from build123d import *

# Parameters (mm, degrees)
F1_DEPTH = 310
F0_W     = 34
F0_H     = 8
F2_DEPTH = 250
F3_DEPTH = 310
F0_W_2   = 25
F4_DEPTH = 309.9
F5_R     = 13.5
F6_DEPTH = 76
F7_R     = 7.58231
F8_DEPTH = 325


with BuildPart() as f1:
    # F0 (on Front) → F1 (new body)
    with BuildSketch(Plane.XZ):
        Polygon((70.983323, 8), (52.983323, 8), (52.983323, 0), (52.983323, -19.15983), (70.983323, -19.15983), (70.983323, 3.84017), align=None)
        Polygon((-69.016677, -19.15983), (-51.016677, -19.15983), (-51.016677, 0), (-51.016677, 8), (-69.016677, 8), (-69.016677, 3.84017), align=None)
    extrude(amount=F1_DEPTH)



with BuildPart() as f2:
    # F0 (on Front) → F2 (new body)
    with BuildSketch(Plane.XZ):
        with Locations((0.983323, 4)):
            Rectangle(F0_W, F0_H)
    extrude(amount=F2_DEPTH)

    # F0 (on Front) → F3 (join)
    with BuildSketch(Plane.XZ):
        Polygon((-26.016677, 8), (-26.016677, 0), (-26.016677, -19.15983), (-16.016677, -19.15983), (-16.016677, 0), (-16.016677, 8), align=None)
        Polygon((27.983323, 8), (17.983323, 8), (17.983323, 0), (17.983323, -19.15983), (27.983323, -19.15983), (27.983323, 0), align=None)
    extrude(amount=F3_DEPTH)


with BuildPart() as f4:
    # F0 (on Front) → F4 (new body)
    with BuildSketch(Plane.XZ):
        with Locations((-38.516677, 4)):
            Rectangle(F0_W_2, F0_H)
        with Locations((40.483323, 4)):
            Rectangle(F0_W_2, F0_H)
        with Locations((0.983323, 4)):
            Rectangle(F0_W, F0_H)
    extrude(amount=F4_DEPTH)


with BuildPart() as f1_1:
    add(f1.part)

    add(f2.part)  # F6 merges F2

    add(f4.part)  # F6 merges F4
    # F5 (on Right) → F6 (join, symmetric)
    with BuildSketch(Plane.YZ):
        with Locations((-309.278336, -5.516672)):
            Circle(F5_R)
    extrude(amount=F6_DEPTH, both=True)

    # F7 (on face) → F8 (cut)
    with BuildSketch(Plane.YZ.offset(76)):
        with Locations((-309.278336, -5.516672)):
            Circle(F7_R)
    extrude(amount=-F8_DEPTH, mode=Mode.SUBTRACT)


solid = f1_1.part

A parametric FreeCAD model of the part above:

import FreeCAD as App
import Part
import Sketcher
Q = App.Units.Quantity

doc = App.newDocument("Part")
body = doc.addObject("PartDesign::Body", "Body")
body.AllowCompound = True

sketch1 = body.newObject("Sketcher::SketchObject", "Sketch")
sketch1.AttachmentSupport = (doc.getObject("XZ_Plane"), [""])
sketch1.MapMode = "FlatFace"
sketch1.addGeometry([
    Part.LineSegment(App.Vector(71, 8, 0), App.Vector(53, 8, 0)),
    Part.LineSegment(App.Vector(53, 8, 0), App.Vector(53, -19, 0)),
    Part.LineSegment(App.Vector(53, -19, 0), App.Vector(71, -19, 0)),
    Part.LineSegment(App.Vector(71, -19, 0), App.Vector(71, 8, 0)),
    Part.LineSegment(App.Vector(-69, -19, 0), App.Vector(-51, -19, 0)),
    Part.LineSegment(App.Vector(-51, -19, 0), App.Vector(-51, 8, 0)),
    Part.LineSegment(App.Vector(-51, 8, 0), App.Vector(-69, 8, 0)),
    Part.LineSegment(App.Vector(-69, 8, 0), App.Vector(-69, -19, 0)),
], False)
sketch1.addConstraint([
    Sketcher.Constraint("Coincident", 0, 2, 1, 1),
    Sketcher.Constraint("Coincident", 1, 2, 2, 1),
    Sketcher.Constraint("Coincident", 2, 2, 3, 1),
    Sketcher.Constraint("Coincident", 3, 2, 0, 1),
    Sketcher.Constraint("Coincident", 4, 2, 5, 1),
    Sketcher.Constraint("Coincident", 5, 2, 6, 1),
    Sketcher.Constraint("Coincident", 6, 2, 7, 1),
    Sketcher.Constraint("Coincident", 7, 2, 4, 1),
    Sketcher.Constraint("Horizontal", 0),
    Sketcher.Constraint("Vertical", 1),
    Sketcher.Constraint("Horizontal", 2),
    Sketcher.Constraint("Vertical", 3),
    Sketcher.Constraint("Horizontal", 4),
    Sketcher.Constraint("Vertical", 5),
    Sketcher.Constraint("Horizontal", 6),
    Sketcher.Constraint("Vertical", 7),
    Sketcher.Constraint("Horizontal", 2, 2, 4, 2),
    Sketcher.Constraint("Horizontal", 3, 2, 5, 2),
    Sketcher.Constraint("Equal", 2, 4),
    Sketcher.Constraint("DistanceX", 0, 2, 0, 1, Q("18 mm")),
    Sketcher.Constraint("DistanceY", -1, 1, 0, 2, Q("8 mm")),
    Sketcher.Constraint("DistanceX", 4, 2, 1, 2, Q("104 mm")),
    Sketcher.Constraint("DistanceY", 1, 2, 1, 1, Q("27.15983 mm")),
    Sketcher.Constraint("DistanceX", -1, 1, 0, 2, Q("52.983323 mm")),
])
pad1 = body.newObject("PartDesign::Pad", "Pad")
pad1.Profile = sketch1
pad1.Length = 310
body2 = doc.addObject("PartDesign::Body", "Body001")

sketch2 = body2.newObject("Sketcher::SketchObject", "Sketch001")
sketch2.AttachmentSupport = (doc.getObject("XZ_Plane001"), [""])
sketch2.MapMode = "FlatFace"
sketch2.addGeometry([
    Part.LineSegment(App.Vector(-16, 8, 0), App.Vector(-16, 0, 0)),
    Part.LineSegment(App.Vector(-16, 0, 0), App.Vector(18, 0, 0)),
    Part.LineSegment(App.Vector(18, 0, 0), App.Vector(18, 8, 0)),
    Part.LineSegment(App.Vector(18, 8, 0), App.Vector(-16, 8, 0)),
], False)
sketch2.addConstraint([
    Sketcher.Constraint("Coincident", 0, 2, 1, 1),
    Sketcher.Constraint("Coincident", 1, 2, 2, 1),
    Sketcher.Constraint("Coincident", 2, 2, 3, 1),
    Sketcher.Constraint("Coincident", 3, 2, 0, 1),
    Sketcher.Constraint("Vertical", 0),
    Sketcher.Constraint("Horizontal", 1),
    Sketcher.Constraint("Vertical", 2),
    Sketcher.Constraint("Horizontal", 3),
    Sketcher.Constraint("PointOnObject", 0, 2, -1),
    Sketcher.Constraint("DistanceX", 1, 1, 1, 2, Q("34 mm")),
    Sketcher.Constraint("DistanceY", 0, 2, 0, 1, Q("8 mm")),
    Sketcher.Constraint("DistanceX", 0, 2, -1, 1, Q("16.016677 mm")),
])
pad2 = body2.newObject("PartDesign::Pad", "Pad001")
pad2.Profile = sketch2
pad2.Length = 250

sketch3 = body2.newObject("Sketcher::SketchObject", "Sketch002")
sketch3.AttachmentSupport = (doc.getObject("XZ_Plane001"), [""])
sketch3.MapMode = "FlatFace"
sketch3.addGeometry([
    Part.LineSegment(App.Vector(-26, 8, 0), App.Vector(-26, -19, 0)),
    Part.LineSegment(App.Vector(-26, -19, 0), App.Vector(-16, -19, 0)),
    Part.LineSegment(App.Vector(-16, -19, 0), App.Vector(-16, 8, 0)),
    Part.LineSegment(App.Vector(-16, 8, 0), App.Vector(-26, 8, 0)),
    Part.LineSegment(App.Vector(28, 8, 0), App.Vector(18, 8, 0)),
    Part.LineSegment(App.Vector(18, 8, 0), App.Vector(18, -19, 0)),
    Part.LineSegment(App.Vector(18, -19, 0), App.Vector(28, -19, 0)),
    Part.LineSegment(App.Vector(28, -19, 0), App.Vector(28, 8, 0)),
], False)
sketch3.addConstraint([
    Sketcher.Constraint("Coincident", 0, 2, 1, 1),
    Sketcher.Constraint("Coincident", 1, 2, 2, 1),
    Sketcher.Constraint("Coincident", 2, 2, 3, 1),
    Sketcher.Constraint("Coincident", 3, 2, 0, 1),
    Sketcher.Constraint("Coincident", 4, 2, 5, 1),
    Sketcher.Constraint("Coincident", 5, 2, 6, 1),
    Sketcher.Constraint("Coincident", 6, 2, 7, 1),
    Sketcher.Constraint("Coincident", 7, 2, 4, 1),
    Sketcher.Constraint("Vertical", 0),
    Sketcher.Constraint("Horizontal", 1),
    Sketcher.Constraint("Vertical", 2),
    Sketcher.Constraint("Horizontal", 3),
    Sketcher.Constraint("Horizontal", 4),
    Sketcher.Constraint("Vertical", 5),
    Sketcher.Constraint("Horizontal", 6),
    Sketcher.Constraint("Vertical", 7),
    Sketcher.Constraint("Horizontal", 3, 2, 4, 2),
    Sketcher.Constraint("Horizontal", 1, 2, 5, 2),
    Sketcher.Constraint("Equal", 3, 4),
    Sketcher.Constraint("DistanceX", 1, 1, 1, 2, Q("10 mm")),
    Sketcher.Constraint("DistanceY", -1, 1, 2, 2, Q("8 mm")),
    Sketcher.Constraint("DistanceX", 2, 2, 4, 2, Q("34 mm")),
    Sketcher.Constraint("DistanceY", 0, 2, 0, 1, Q("27.15983 mm")),
    Sketcher.Constraint("DistanceX", 0, 2, -1, 1, Q("26.016677 mm")),
])
pad3 = body2.newObject("PartDesign::Pad", "Pad002")
pad3.Profile = sketch3
pad3.Length = 310
body3 = doc.addObject("PartDesign::Body", "Body002")
body3.AllowCompound = True

sketch4 = body3.newObject("Sketcher::SketchObject", "Sketch003")
sketch4.AttachmentSupport = (doc.getObject("XZ_Plane002"), [""])
sketch4.MapMode = "FlatFace"
sketch4.addGeometry([
    Part.LineSegment(App.Vector(-51, 8, 0), App.Vector(-51, 0, 0)),
    Part.LineSegment(App.Vector(-51, 0, 0), App.Vector(-26, 0, 0)),
    Part.LineSegment(App.Vector(-26, 0, 0), App.Vector(-26, 8, 0)),
    Part.LineSegment(App.Vector(-26, 8, 0), App.Vector(-51, 8, 0)),
    Part.LineSegment(App.Vector(28, 8, 0), App.Vector(28, 0, 0)),
    Part.LineSegment(App.Vector(28, 0, 0), App.Vector(53, 0, 0)),
    Part.LineSegment(App.Vector(53, 0, 0), App.Vector(53, 8, 0)),
    Part.LineSegment(App.Vector(53, 8, 0), App.Vector(28, 8, 0)),
    Part.LineSegment(App.Vector(-16, 8, 0), App.Vector(-16, 0, 0)),
    Part.LineSegment(App.Vector(-16, 0, 0), App.Vector(18, 0, 0)),
    Part.LineSegment(App.Vector(18, 0, 0), App.Vector(18, 8, 0)),
    Part.LineSegment(App.Vector(18, 8, 0), App.Vector(-16, 8, 0)),
], False)
sketch4.addConstraint([
    Sketcher.Constraint("Coincident", 0, 2, 1, 1),
    Sketcher.Constraint("Coincident", 1, 2, 2, 1),
    Sketcher.Constraint("Coincident", 2, 2, 3, 1),
    Sketcher.Constraint("Coincident", 3, 2, 0, 1),
    Sketcher.Constraint("Coincident", 4, 2, 5, 1),
    Sketcher.Constraint("Coincident", 5, 2, 6, 1),
    Sketcher.Constraint("Coincident", 6, 2, 7, 1),
    Sketcher.Constraint("Coincident", 7, 2, 4, 1),
    Sketcher.Constraint("Coincident", 8, 2, 9, 1),
    Sketcher.Constraint("Coincident", 9, 2, 10, 1),
    Sketcher.Constraint("Coincident", 10, 2, 11, 1),
    Sketcher.Constraint("Coincident", 11, 2, 8, 1),
    Sketcher.Constraint("Vertical", 0),
    Sketcher.Constraint("Horizontal", 1),
    Sketcher.Constraint("Vertical", 2),
    Sketcher.Constraint("Horizontal", 3),
    Sketcher.Constraint("Vertical", 4),
    Sketcher.Constraint("Horizontal", 5),
    Sketcher.Constraint("Vertical", 6),
    Sketcher.Constraint("Horizontal", 7),
    Sketcher.Constraint("Vertical", 8),
    Sketcher.Constraint("Horizontal", 9),
    Sketcher.Constraint("Vertical", 10),
    Sketcher.Constraint("Horizontal", 11),
    Sketcher.Constraint("PointOnObject", 0, 2, -1),
    Sketcher.Constraint("PointOnObject", 4, 2, -1),
    Sketcher.Constraint("PointOnObject", 8, 2, -1),
    Sketcher.Constraint("Horizontal", 3, 2, 6, 2),
    Sketcher.Constraint("Horizontal", 7, 2, 10, 2),
    Sketcher.Constraint("Equal", 3, 5),
    Sketcher.Constraint("DistanceX", 1, 1, 1, 2, Q("25 mm")),
    Sketcher.Constraint("DistanceX", 9, 1, 9, 2, Q("34 mm")),
    Sketcher.Constraint("DistanceY", 0, 2, 0, 1, Q("8 mm")),
    Sketcher.Constraint("DistanceX", 1, 2, 4, 2, Q("54 mm")),
    Sketcher.Constraint("DistanceX", 1, 2, 8, 2, Q("10 mm")),
    Sketcher.Constraint("DistanceX", 0, 2, -1, 1, Q("51.016677 mm")),
])
pad4 = body3.newObject("PartDesign::Pad", "Pad003")
pad4.Profile = sketch4
pad4.Length = 309.9
body.AllowCompound = True
doc.recompute()

boolean = body.newObject("PartDesign::Boolean", "Boolean")
boolean.Type = "Fuse"
boolean.addObjects([body2])
doc.recompute()

boolean2 = body.newObject("PartDesign::Boolean", "Boolean001")
boolean2.Type = "Fuse"
boolean2.addObjects([body3])

sketch5 = body.newObject("Sketcher::SketchObject", "Sketch004")
sketch5.AttachmentSupport = (doc.getObject("YZ_Plane"), [""])
sketch5.MapMode = "FlatFace"
sketch5.addGeometry(Part.Circle(App.Vector(-309, -6, 0), App.Vector(0, 0, 1), 14), False)
sketch5.addConstraint([
    Sketcher.Constraint("Diameter", 0, Q("27 mm")),
    Sketcher.Constraint("DistanceY", 0, 3, -1, 1, Q("5.516672 mm")),
    Sketcher.Constraint("DistanceX", 0, 3, -1, 1, Q("309.278336 mm")),
])
pad5 = body.newObject("PartDesign::Pad", "Pad004")
pad5.Profile = sketch5
pad5.Length = 152
pad5.Midplane = True

sketch6 = body.newObject("Sketcher::SketchObject", "Sketch005")
sketch6.AttachmentSupport = (doc.getObject("YZ_Plane"), [""])
sketch6.MapMode = "FlatFace"
sketch6.AttachmentOffset = App.Placement(App.Vector(0, 0, 76), App.Rotation())
sketch6.addGeometry(Part.Circle(App.Vector(-309, -6, 0), App.Vector(0, 0, 1), 8), False)
sketch6.addConstraint([
    Sketcher.Constraint("Diameter", 0, Q("15.16462 mm")),
    Sketcher.Constraint("DistanceY", 0, 3, -1, 1, Q("5.516672 mm")),
    Sketcher.Constraint("DistanceX", 0, 3, -1, 1, Q("309.278336 mm")),
])
pocket1 = body.newObject("PartDesign::Pocket", "Pocket")
pocket1.Profile = sketch6
pocket1.Length = 325

doc.recompute()
